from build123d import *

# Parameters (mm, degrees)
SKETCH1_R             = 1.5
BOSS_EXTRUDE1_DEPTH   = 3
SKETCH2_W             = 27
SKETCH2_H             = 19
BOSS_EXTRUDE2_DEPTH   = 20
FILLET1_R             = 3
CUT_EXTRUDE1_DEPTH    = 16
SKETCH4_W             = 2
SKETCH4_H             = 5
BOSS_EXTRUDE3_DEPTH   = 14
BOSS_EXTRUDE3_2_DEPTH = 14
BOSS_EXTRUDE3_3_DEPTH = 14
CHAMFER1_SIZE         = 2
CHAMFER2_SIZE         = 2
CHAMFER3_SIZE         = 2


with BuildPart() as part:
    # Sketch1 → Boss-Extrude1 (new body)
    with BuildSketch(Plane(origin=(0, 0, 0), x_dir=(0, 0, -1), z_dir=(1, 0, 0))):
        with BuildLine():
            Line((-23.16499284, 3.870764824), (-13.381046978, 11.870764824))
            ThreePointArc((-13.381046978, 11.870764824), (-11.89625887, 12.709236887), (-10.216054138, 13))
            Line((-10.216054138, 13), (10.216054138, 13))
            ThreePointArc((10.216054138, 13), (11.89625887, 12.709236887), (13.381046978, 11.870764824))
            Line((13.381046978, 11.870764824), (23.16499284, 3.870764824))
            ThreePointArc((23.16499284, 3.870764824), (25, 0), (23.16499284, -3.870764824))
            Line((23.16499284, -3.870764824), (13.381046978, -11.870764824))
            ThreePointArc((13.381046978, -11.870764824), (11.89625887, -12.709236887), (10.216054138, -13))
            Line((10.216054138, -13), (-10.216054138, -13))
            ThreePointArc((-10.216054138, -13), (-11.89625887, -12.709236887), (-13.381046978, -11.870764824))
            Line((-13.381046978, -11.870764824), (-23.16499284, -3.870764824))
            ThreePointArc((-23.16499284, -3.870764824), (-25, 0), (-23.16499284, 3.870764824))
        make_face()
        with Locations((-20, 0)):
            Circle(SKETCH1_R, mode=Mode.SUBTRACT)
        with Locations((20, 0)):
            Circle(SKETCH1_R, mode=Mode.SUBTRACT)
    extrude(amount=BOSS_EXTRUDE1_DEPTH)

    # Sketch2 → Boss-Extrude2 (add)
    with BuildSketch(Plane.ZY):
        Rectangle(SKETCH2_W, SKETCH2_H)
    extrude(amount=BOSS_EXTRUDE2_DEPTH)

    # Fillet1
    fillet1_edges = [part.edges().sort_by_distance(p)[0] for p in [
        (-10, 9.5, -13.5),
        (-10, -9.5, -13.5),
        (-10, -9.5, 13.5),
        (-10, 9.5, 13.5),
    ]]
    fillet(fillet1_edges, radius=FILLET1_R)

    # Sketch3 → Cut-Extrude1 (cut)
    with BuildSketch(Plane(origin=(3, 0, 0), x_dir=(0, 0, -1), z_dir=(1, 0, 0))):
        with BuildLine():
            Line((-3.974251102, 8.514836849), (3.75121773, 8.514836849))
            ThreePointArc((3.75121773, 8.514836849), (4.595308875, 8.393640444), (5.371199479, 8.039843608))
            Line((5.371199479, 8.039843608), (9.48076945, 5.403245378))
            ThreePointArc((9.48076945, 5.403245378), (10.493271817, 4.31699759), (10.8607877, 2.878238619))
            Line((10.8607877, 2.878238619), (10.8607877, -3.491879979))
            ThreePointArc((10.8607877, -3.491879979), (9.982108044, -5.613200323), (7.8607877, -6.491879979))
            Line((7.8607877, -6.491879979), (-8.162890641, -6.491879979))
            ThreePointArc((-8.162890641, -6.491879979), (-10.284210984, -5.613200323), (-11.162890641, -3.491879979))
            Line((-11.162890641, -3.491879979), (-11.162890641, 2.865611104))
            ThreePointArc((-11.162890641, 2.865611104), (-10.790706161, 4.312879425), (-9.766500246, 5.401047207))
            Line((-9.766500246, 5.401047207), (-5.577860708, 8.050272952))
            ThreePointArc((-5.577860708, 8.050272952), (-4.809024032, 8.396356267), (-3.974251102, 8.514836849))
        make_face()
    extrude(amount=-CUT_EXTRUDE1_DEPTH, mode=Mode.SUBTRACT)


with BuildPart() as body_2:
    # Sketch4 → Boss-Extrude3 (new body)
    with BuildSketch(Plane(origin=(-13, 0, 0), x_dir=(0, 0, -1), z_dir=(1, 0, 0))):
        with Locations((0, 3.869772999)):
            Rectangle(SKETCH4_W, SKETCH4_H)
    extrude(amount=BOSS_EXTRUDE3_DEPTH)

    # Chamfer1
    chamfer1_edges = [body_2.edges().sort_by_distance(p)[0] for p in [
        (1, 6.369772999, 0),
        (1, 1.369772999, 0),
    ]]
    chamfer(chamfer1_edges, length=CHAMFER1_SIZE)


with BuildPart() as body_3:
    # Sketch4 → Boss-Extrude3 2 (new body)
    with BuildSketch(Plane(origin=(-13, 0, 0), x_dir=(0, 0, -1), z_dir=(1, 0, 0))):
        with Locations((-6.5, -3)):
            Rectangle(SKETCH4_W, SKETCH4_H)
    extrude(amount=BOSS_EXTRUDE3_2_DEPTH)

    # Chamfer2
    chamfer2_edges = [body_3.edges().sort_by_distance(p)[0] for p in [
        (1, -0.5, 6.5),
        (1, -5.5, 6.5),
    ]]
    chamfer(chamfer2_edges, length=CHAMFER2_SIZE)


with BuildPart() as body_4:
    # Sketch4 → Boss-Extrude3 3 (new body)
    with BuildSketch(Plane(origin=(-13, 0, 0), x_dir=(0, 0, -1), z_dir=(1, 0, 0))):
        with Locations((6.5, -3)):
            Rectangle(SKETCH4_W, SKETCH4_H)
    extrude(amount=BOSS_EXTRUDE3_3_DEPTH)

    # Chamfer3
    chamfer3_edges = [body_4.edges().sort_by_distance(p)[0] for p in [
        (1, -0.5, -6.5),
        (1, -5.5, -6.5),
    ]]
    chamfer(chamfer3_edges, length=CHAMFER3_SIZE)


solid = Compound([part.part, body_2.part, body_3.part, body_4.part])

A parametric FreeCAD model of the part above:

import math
import FreeCAD as App
import Part
import Sketcher


def edges_at(feature, points):
    """Names of the edges that pass closest to the given points."""
    edges = feature.Shape.Edges
    near = lambda p: min(range(len(edges)), key=lambda i: edges[i].distToShape(Part.Vertex(*p))[0])
    return sorted({f"Edge{near(p) + 1}" for p in points})


def add_polygon(sketch, points):
    """Adds a closed chain of lines whose ends are joined by coincident constraints."""
    first, n = sketch.GeometryCount, len(points)
    for a, b in zip(points, points[1:] + points[:1]):
        sketch.addGeometry(Part.LineSegment(App.Vector(*a, 0), App.Vector(*b, 0)), False)
    for i in range(n):
        sketch.addConstraint(Sketcher.Constraint("Coincident", first + i, 2, first + (i + 1) % n, 1))

doc = App.newDocument("Part")
body = doc.addObject("PartDesign::Body", "Body")

# Sketch on YZ plane
sketch1 = body.newObject("Sketcher::SketchObject", "Sketch")
sketch1.AttachmentSupport = (doc.getObject("YZ_Plane"), [""])
sketch1.MapMode = "FlatFace"
sketch1.addGeometry([
    Part.LineSegment(App.Vector(11.9, 13.4, 0), App.Vector(3.9, 23.2, 0)),  # 0
    Part.ArcOfCircle(Part.Circle(App.Vector(0, 20, 0), App.Vector(0, 0, 1), 5), math.radians(39), math.radians(141)),  # 1
    Part.LineSegment(App.Vector(-3.9, 23.2, 0), App.Vector(-11.9, 13.4, 0)),  # 2
    Part.ArcOfCircle(Part.Circle(App.Vector(-8, 10.2, 0), App.Vector(0, 0, 1), 5), math.radians(141), math.radians(180)),  # 3
    Part.LineSegment(App.Vector(-13, 10.2, 0), App.Vector(-13, -10.2, 0)),  # 4
    Part.ArcOfCircle(Part.Circle(App.Vector(-8, -10.2, 0), App.Vector(0, 0, 1), 5), math.radians(180), math.radians(219)),  # 5
    Part.LineSegment(App.Vector(-11.9, -13.4, 0), App.Vector(-3.9, -23.2, 0)),  # 6
    Part.ArcOfCircle(Part.Circle(App.Vector(0, -20, 0), App.Vector(0, 0, 1), 5), math.radians(-141), math.radians(-39)),  # 7
    Part.LineSegment(App.Vector(3.9, -23.2, 0), App.Vector(11.9, -13.4, 0)),  # 8
    Part.ArcOfCircle(Part.Circle(App.Vector(8, -10.2, 0), App.Vector(0, 0, 1), 5), math.radians(-39), math.radians(0)),  # 9
    Part.LineSegment(App.Vector(13, -10.2, 0), App.Vector(13, 10.2, 0)),  # 10
    Part.ArcOfCircle(Part.Circle(App.Vector(8, 10.2, 0), App.Vector(0, 0, 1), 5), math.radians(0), math.radians(39)),  # 11
    Part.Circle(App.Vector(0, -20, 0), App.Vector(0, 0, 1), 1.5),  # 12
    Part.Circle(App.Vector(0, 20, 0), App.Vector(0, 0, 1), 1.5),  # 13
], False)
sketch1.addConstraint([
    Sketcher.Constraint("Tangent", 0, 2, 1, 1),
    Sketcher.Constraint("Tangent", 1, 2, 2, 1),
    Sketcher.Constraint("Tangent", 2, 2, 3, 1),
    Sketcher.Constraint("Tangent", 3, 2, 4, 1),
    Sketcher.Constraint("Tangent", 4, 2, 5, 1),
    Sketcher.Constraint("Tangent", 5, 2, 6, 1),
    Sketcher.Constraint("Tangent", 6, 2, 7, 1),
    Sketcher.Constraint("Tangent", 7, 2, 8, 1),
    Sketcher.Constraint("Tangent", 8, 2, 9, 1),
    Sketcher.Constraint("Tangent", 9, 2, 10, 1),
    Sketcher.Constraint("Tangent", 10, 2, 11, 1),
    Sketcher.Constraint("Tangent", 11, 2, 0, 1),
    Sketcher.Constraint("Vertical", 4),
    Sketcher.Constraint("Vertical", 10),
    Sketcher.Constraint("Coincident", 12, 3, 7, 3),
    Sketcher.Constraint("Coincident", 13, 3, 1, 3),
    Sketcher.Constraint("Equal", 1, 3),
    Sketcher.Constraint("Equal", 3, 5),
    Sketcher.Constraint("Equal", 5, 7),
    Sketcher.Constraint("Equal", 7, 9),
    Sketcher.Constraint("Equal", 9, 11),
    Sketcher.Constraint("Equal", 12, 13),
    Sketcher.Constraint("Symmetric", 1, 3, 7, 3, -1, 1),
    Sketcher.Constraint("Symmetric", 3, 3, 9, 3, -1, 1),
    Sketcher.Constraint("Symmetric", 0, 2, 1, 2, -2),
    Sketcher.Constraint("Parallel", 0, 6),
    Sketcher.Constraint("Diameter", 12, 3.0),
    Sketcher.Constraint("Radius", 1, 5.0),
    Sketcher.Constraint("DistanceY", -1, 1, 1, 3, 20.0),
    Sketcher.Constraint("DistanceX", 3, 3, -1, 1, 8.0),
    Sketcher.Constraint("DistanceY", 4, 2, 4, 1, 20.432108),
])
pad1 = body.newObject("PartDesign::Pad", "Pad")
pad1.Profile = sketch1
pad1.Length = 3

# Sketch on YZ plane
sketch2 = body.newObject("Sketcher::SketchObject", "Sketch001")
sketch2.AttachmentSupport = (doc.getObject("YZ_Plane"), [""])
sketch2.MapMode = "FlatFace"
add_polygon(sketch2, [(10, -14), (-10, -14), (-10, 14), (10, 14)])  # lines 0-3
sketch2.addConstraint([
    Sketcher.Constraint("Horizontal", 0),
    Sketcher.Constraint("Vertical", 1),
    Sketcher.Constraint("Horizontal", 2),
    Sketcher.Constraint("Vertical", 3),
    Sketcher.Constraint("Symmetric", 0, 2, 2, 2, -1, 1),
    Sketcher.Constraint("DistanceX", 0, 2, 0, 1, 19.0),
    Sketcher.Constraint("DistanceY", 1, 1, 1, 2, 27.0),
])
pad2 = body.newObject("PartDesign::Pad", "Pad001")
pad2.Profile = sketch2
pad2.Length = 20
pad2.Reversed = True
doc.recompute()

fillet = body.newObject("PartDesign::Fillet", "Fillet")
fillet.Base = (pad2, edges_at(pad2, [
    (-10, 9.5, -13.5),
    (-10, -9.5, -13.5),
    (-10, -9.5, 13.5),
    (-10, 9.5, 13.5),
]))
fillet.Radius = 3

# Sketch on YZ plane
sketch3 = body.newObject("Sketcher::SketchObject", "Sketch002")
sketch3.AttachmentSupport = (doc.getObject("YZ_Plane"), [""])
sketch3.MapMode = "FlatFace"
sketch3.AttachmentOffset = App.Placement(App.Vector(0, 0, 3), App.Rotation())
sketch3.addGeometry([
    Part.LineSegment(App.Vector(8.5, -3.8, 0), App.Vector(8.5, 4, 0)),  # 0
    Part.ArcOfCircle(Part.Circle(App.Vector(5.5, 4, 0), App.Vector(0, 0, 1), 3), math.radians(0), math.radians(32)),  # 1
    Part.LineSegment(App.Vector(8.1, 5.6, 0), App.Vector(5.4, 9.8, 0)),  # 2
    Part.ArcOfCircle(Part.Circle(App.Vector(2.9, 8.2, 0), App.Vector(0, 0, 1), 3), math.radians(32), math.radians(90)),  # 3
    Part.LineSegment(App.Vector(2.9, 11.2, 0), App.Vector(-3.5, 11.2, 0)),  # 4
    Part.ArcOfCircle(Part.Circle(App.Vector(-3.5, 8.2, 0), App.Vector(0, 0, 1), 3), math.radians(90), math.radians(180)),  # 5
    Part.LineSegment(App.Vector(-6.5, 8.2, 0), App.Vector(-6.5, -7.9, 0)),  # 6
    Part.ArcOfCircle(Part.Circle(App.Vector(-3.5, -7.9, 0), App.Vector(0, 0, 1), 3), math.radians(180), math.radians(270)),  # 7
    Part.LineSegment(App.Vector(-3.5, -10.9, 0), App.Vector(2.9, -10.9, 0)),  # 8
    Part.ArcOfCircle(Part.Circle(App.Vector(2.9, -7.9, 0), App.Vector(0, 0, 1), 3), math.radians(-90), math.radians(-33)),  # 9
    Part.LineSegment(App.Vector(5.4, -9.5, 0), App.Vector(8, -5.4, 0)),  # 10
    Part.ArcOfCircle(Part.Circle(App.Vector(5.5, -3.8, 0), App.Vector(0, 0, 1), 3), math.radians(-33), math.radians(0)),  # 11
], False)
sketch3.addConstraint([
    Sketcher.Constraint("Tangent", 0, 2, 1, 1),
    Sketcher.Constraint("Tangent", 1, 2, 2, 1),
    Sketcher.Constraint("Tangent", 2, 2, 3, 1),
    Sketcher.Constraint("Tangent", 3, 2, 4, 1),
    Sketcher.Constraint("Tangent", 4, 2, 5, 1),
    Sketcher.Constraint("Tangent", 5, 2, 6, 1),
    Sketcher.Constraint("Tangent", 6, 2, 7, 1),
    Sketcher.Constraint("Tangent", 7, 2, 8, 1),
    Sketcher.Constraint("Tangent", 8, 2, 9, 1),
    Sketcher.Constraint("Tangent", 9, 2, 10, 1),
    Sketcher.Constraint("Tangent", 10, 2, 11, 1),
    Sketcher.Constraint("Tangent", 11, 2, 0, 1),
    Sketcher.Constraint("Vertical", 0),
    Sketcher.Constraint("Horizontal", 4),
    Sketcher.Constraint("Vertical", 6),
    Sketcher.Constraint("Horizontal", 8),
    Sketcher.Constraint("Equal", 1, 3),
    Sketcher.Constraint("Equal", 3, 5),
    Sketcher.Constraint("Equal", 5, 7),
    Sketcher.Constraint("Equal", 7, 9),
    Sketcher.Constraint("Equal", 9, 11),
    Sketcher.Constraint("Radius", 1, 3.0),
    Sketcher.Constraint("DistanceX", 4, 2, 4, 1, 6.357491),
    Sketcher.Constraint("DistanceX", 8, 1, 8, 2, 6.370119),
    Sketcher.Constraint("DistanceY", 0, 1, 0, 2, 7.725469),
    Sketcher.Constraint("DistanceY", 6, 2, 6, 1, 16.023678),
    Sketcher.Constraint("DistanceY", -1, 1, 2, 2, 9.7665),
    Sketcher.Constraint("DistanceY", 10, 2, -1, 1, 5.371199),
    Sketcher.Constraint("DistanceX", 9, 3, 1, 3, 2.636598),
    Sketcher.Constraint("DistanceX", -1, 1, 3, 3, 2.865611),
])
pocket1 = body.newObject("PartDesign::Pocket", "Pocket")
pocket1.Profile = sketch3
pocket1.Length = 16
body2 = doc.addObject("PartDesign::Body", "Body001")

# Sketch on YZ plane
sketch4 = body2.newObject("Sketcher::SketchObject", "Sketch003")
sketch4.AttachmentSupport = (doc.getObject("YZ_Plane001"), [""])
sketch4.MapMode = "FlatFace"
sketch4.AttachmentOffset = App.Placement(App.Vector(0, 0, -13), App.Rotation())
add_polygon(sketch4, [(6.4, 1), (1.4, 1), (1.4, -1), (6.4, -1)])  # lines 0-3
sketch4.addConstraint([
    Sketcher.Constraint("Horizontal", 0),
    Sketcher.Constraint("Vertical", 1),
    Sketcher.Constraint("Horizontal", 2),
    Sketcher.Constraint("Vertical", 3),
    Sketcher.Constraint("DistanceX", 0, 2, 0, 1, 5.0),
    Sketcher.Constraint("DistanceY", 1, 2, 1, 1, 2.0),
    Sketcher.Constraint("DistanceY", -1, 1, 0, 2, 1.0),
    Sketcher.Constraint("DistanceX", -1, 1, 0, 2, 1.369773),
])
pad3 = body2.newObject("PartDesign::Pad", "Pad002")
pad3.Profile = sketch4
pad3.Length = 14
doc.recompute()

chamfer = body2.newObject("PartDesign::Chamfer", "Chamfer")
chamfer.Base = (pad3, edges_at(pad3, [(1, 6.37, 0), (1, 1.37, 0)]))
chamfer.Size = 2
body3 = doc.addObject("PartDesign::Body", "Body002")

# Sketch on YZ plane
sketch5 = body3.newObject("Sketcher::SketchObject", "Sketch004")
sketch5.AttachmentSupport = (doc.getObject("YZ_Plane002"), [""])
sketch5.MapMode = "FlatFace"
sketch5.AttachmentOffset = App.Placement(App.Vector(0, 0, -13), App.Rotation())
add_polygon(sketch5, [(-0.5, 7.5), (-5.5, 7.5), (-5.5, 5.5), (-0.5, 5.5)])  # lines 0-3
sketch5.addConstraint([
    Sketcher.Constraint("Horizontal", 0),
    Sketcher.Constraint("Vertical", 1),
    Sketcher.Constraint("Horizontal", 2),
    Sketcher.Constraint("Vertical", 3),
    Sketcher.Constraint("DistanceX", 0, 2, 0, 1, 5.0),
    Sketcher.Constraint("DistanceY", 1, 2, 1, 1, 2.0),
    Sketcher.Constraint("DistanceX", 0, 2, -1, 1, 5.5),
    Sketcher.Constraint("DistanceY", -1, 1, 0, 2, 7.5),
])
pad4 = body3.newObject("PartDesign::Pad", "Pad003")
pad4.Profile = sketch5
pad4.Length = 14
doc.recompute()

chamfer2 = body3.newObject("PartDesign::Chamfer", "Chamfer001")
chamfer2.Base = (pad4, edges_at(pad4, [(1, -0.5, 6.5), (1, -5.5, 6.5)]))
chamfer2.Size = 2
body4 = doc.addObject("PartDesign::Body", "Body003")

# Sketch on YZ plane
sketch6 = body4.newObject("Sketcher::SketchObject", "Sketch005")
sketch6.AttachmentSupport = (doc.getObject("YZ_Plane003"), [""])
sketch6.MapMode = "FlatFace"
sketch6.AttachmentOffset = App.Placement(App.Vector(0, 0, -13), App.Rotation())
add_polygon(sketch6, [(-0.5, -5.5), (-5.5, -5.5), (-5.5, -7.5), (-0.5, -7.5)])  # lines 0-3
sketch6.addConstraint([
    Sketcher.Constraint("Horizontal", 0),
    Sketcher.Constraint("Vertical", 1),
    Sketcher.Constraint("Horizontal", 2),
    Sketcher.Constraint("Vertical", 3),
    Sketcher.Constraint("DistanceX", 0, 2, 0, 1, 5.0),
    Sketcher.Constraint("DistanceY", 1, 2, 1, 1, 2.0),
    Sketcher.Constraint("DistanceX", 0, 2, -1, 1, 5.5),
    Sketcher.Constraint("DistanceY", 0, 2, -1, 1, 5.5),
])
pad5 = body4.newObject("PartDesign::Pad", "Pad004")
pad5.Profile = sketch6
pad5.Length = 14
doc.recompute()

chamfer3 = body4.newObject("PartDesign::Chamfer", "Chamfer002")
chamfer3.Base = (pad5, edges_at(pad5, [(1, -0.5, -6.5), (1, -5.5, -6.5)]))
chamfer3.Size = 2

doc.recompute()
